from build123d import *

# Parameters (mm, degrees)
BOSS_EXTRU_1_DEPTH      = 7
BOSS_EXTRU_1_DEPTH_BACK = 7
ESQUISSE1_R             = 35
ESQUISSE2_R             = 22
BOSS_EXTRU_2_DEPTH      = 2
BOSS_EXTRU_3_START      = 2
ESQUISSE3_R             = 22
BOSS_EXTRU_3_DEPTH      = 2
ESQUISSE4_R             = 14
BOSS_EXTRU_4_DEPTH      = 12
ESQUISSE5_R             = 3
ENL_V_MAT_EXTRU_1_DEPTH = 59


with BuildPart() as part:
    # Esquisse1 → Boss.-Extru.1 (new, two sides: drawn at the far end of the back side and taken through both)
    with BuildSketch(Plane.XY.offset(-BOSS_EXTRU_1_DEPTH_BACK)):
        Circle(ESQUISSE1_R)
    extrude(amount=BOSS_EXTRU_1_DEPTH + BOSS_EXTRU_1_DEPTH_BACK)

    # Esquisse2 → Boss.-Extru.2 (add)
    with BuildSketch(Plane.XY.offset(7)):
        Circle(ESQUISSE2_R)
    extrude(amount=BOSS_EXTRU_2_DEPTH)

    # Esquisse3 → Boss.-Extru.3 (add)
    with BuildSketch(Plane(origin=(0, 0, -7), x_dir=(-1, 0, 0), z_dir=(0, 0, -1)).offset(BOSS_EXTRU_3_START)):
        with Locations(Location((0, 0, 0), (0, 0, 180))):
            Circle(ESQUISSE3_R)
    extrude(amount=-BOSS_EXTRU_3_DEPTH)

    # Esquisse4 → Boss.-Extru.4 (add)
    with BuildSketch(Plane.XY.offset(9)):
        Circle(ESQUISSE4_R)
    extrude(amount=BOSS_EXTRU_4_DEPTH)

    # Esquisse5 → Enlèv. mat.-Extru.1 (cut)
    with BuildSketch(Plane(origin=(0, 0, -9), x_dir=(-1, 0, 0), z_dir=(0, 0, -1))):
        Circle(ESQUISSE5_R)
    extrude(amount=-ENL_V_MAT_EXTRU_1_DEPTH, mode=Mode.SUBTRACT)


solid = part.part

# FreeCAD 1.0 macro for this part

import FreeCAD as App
import Part
import Sketcher
from FreeCAD import Vector
Q = App.Units.Quantity

doc = App.newDocument("Part")
body = doc.addObject("PartDesign::Body", "Body")

# Sketch on XY plane
sketch1 = body.newObject("Sketcher::SketchObject", "Sketch")
sketch1.AttachmentSupport = (doc.getObject("XY_Plane"), [""])
sketch1.MapMode = "FlatFace"
sketch1.addGeometry(Part.Circle(Vector(0, 0, 0), Vector(0, 0, 1), 35), False)
sketch1.addConstraint(Sketcher.Constraint("Coincident", 0, 3, -1, 1))
sketch1.addConstraint(Sketcher.Constraint("Diameter", 0, Q("70 mm")))
pad1 = body.newObject("PartDesign::Pad", "Pad")
pad1.Profile = sketch1
pad1.Type = "TwoLengths"
pad1.Length = 7
pad1.Length2 = 7

# Sketch on XY plane
sketch2 = body.newObject("Sketcher::SketchObject", "Sketch001")
sketch2.AttachmentSupport = (doc.getObject("XY_Plane"), [""])
sketch2.MapMode = "FlatFace"
sketch2.AttachmentOffset = App.Placement(Vector(0, 0, 7), App.Rotation())
sketch2.addGeometry(Part.Circle(Vector(0, 0, 0), Vector(0, 0, 1), 22), False)
sketch2.addConstraint(Sketcher.Constraint("Coincident", 0, 3, -1, 1))
sketch2.addConstraint(Sketcher.Constraint("Diameter", 0, Q("44 mm")))
pad2 = body.newObject("PartDesign::Pad", "Pad001")
pad2.Profile = sketch2
pad2.Length = 2

# Sketch on XY plane
sketch3 = body.newObject("Sketcher::SketchObject", "Sketch002")
sketch3.AttachmentSupport = (doc.getObject("XY_Plane"), [""])
sketch3.MapMode = "FlatFace"
sketch3.AttachmentOffset = App.Placement(Vector(0, 0, -9), App.Rotation())
sketch3.addGeometry(Part.Circle(Vector(0, 0, 0), Vector(0, 0, 1), 22), False)
sketch3.addConstraint(Sketcher.Constraint("Coincident", 0, 3, -1, 1))
sketch3.addConstraint(Sketcher.Constraint("Diameter", 0, Q("44 mm")))
pad3 = body.newObject("PartDesign::Pad", "Pad002")
pad3.Profile = sketch3
pad3.Length = 2

# Sketch on XY plane
sketch4 = body.newObject("Sketcher::SketchObject", "Sketch003")
sketch4.AttachmentSupport = (doc.getObject("XY_Plane"), [""])
sketch4.MapMode = "FlatFace"
sketch4.AttachmentOffset = App.Placement(Vector(0, 0, 9), App.Rotation())
sketch4.addGeometry(Part.Circle(Vector(0, 0, 0), Vector(0, 0, 1), 14), False)
sketch4.addConstraint(Sketcher.Constraint("Coincident", 0, 3, -1, 1))
sketch4.addConstraint(Sketcher.Constraint("Diameter", 0, Q("28 mm")))
pad4 = body.newObject("PartDesign::Pad", "Pad003")
pad4.Profile = sketch4
pad4.Length = 12

# Sketch on XY plane
sketch5 = body.newObject("Sketcher::SketchObject", "Sketch004")
sketch5.AttachmentSupport = (doc.getObject("XY_Plane"), [""])
sketch5.MapMode = "FlatFace"
sketch5.AttachmentOffset = App.Placement(Vector(0, 0, -9), App.Rotation())
sketch5.addGeometry(Part.Circle(Vector(0, 0, 0), Vector(0, 0, 1), 3), False)
sketch5.addConstraint(Sketcher.Constraint("Coincident", 0, 3, -1, 1))
sketch5.addConstraint(Sketcher.Constraint("Diameter", 0, Q("6 mm")))
pocket1 = body.newObject("PartDesign::Pocket", "Pocket")
pocket1.Profile = sketch5
pocket1.Length = 59
pocket1.Reversed = True

doc.recompute()
